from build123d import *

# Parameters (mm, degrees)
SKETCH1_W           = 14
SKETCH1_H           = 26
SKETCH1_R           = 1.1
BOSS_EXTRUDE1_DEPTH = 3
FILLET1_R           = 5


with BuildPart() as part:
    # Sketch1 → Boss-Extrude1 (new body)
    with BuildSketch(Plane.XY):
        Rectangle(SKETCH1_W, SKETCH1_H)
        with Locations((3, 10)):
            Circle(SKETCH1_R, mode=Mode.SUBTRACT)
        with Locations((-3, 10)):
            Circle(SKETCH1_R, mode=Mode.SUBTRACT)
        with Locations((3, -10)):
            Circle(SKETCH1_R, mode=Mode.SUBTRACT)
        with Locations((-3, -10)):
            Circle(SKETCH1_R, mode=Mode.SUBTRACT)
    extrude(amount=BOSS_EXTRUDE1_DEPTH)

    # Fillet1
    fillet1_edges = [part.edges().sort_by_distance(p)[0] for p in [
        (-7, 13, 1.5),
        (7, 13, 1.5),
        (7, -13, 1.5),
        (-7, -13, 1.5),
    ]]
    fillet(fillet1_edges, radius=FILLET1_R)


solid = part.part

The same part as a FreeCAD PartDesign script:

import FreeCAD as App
import Part
import Sketcher
Q = App.Units.Quantity


def edges_at(feature, points):
    """Names of the edges that pass closest to the given points."""
    edges = feature.Shape.Edges
    near = lambda p: min(range(len(edges)), key=lambda i: edges[i].distToShape(Part.Vertex(*p))[0])
    return sorted({f"Edge{near(p) + 1}" for p in points})


def add_polygon(sketch, points):
    """Adds a closed chain of lines whose ends are joined by coincident constraints."""
    first, n = sketch.GeometryCount, len(points)
    for a, b in zip(points, points[1:] + points[:1]):
        sketch.addGeometry(Part.LineSegment(App.Vector(*a, 0), App.Vector(*b, 0)), False)
    for i in range(n):
        sketch.addConstraint(Sketcher.Constraint("Coincident", first + i, 2, first + (i + 1) % n, 1))

doc = App.newDocument("Part")
params = doc.addObject("Spreadsheet::Sheet", "Params")
for row, (alias, value) in enumerate([
    ("sketch1_diameter", "2.2 mm"),
    ("sketch1_width", "14 mm"),
    ("sketch1_height", "26 mm"),
    ("pad1_length", "3 mm"),
    ("fillet_radius", "5 mm"),
], start=1):
    params.set(f"A{row}", alias)
    params.set(f"B{row}", "=" + value)
    params.setAlias(f"B{row}", alias)

body = doc.addObject("PartDesign::Body", "Body")

sketch1 = body.newObject("Sketcher::SketchObject", "Sketch")
sketch1.AttachmentSupport = (doc.getObject("XY_Plane"), [""])
sketch1.MapMode = "FlatFace"
add_polygon(sketch1, [(-7, 13), (-7, -13), (7, -13), (7, 13)])
sketch1.addGeometry(Part.Circle(App.Vector(-3, -10, 0), App.Vector(0, 0, 1), 1.1), False)
sketch1.addGeometry(Part.Circle(App.Vector(3, -10, 0), App.Vector(0, 0, 1), 1.1), False)
sketch1.addGeometry(Part.Circle(App.Vector(-3, 10, 0), App.Vector(0, 0, 1), 1.1), False)
sketch1.addGeometry(Part.Circle(App.Vector(3, 10, 0), App.Vector(0, 0, 1), 1.1), False)
sketch1.addConstraint([
    Sketcher.Constraint("Vertical", 0),
    Sketcher.Constraint("Horizontal", 1),
    Sketcher.Constraint("Vertical", 2),
    Sketcher.Constraint("Horizontal", 3),
    Sketcher.Constraint("Equal", 4, 5),
    Sketcher.Constraint("Equal", 5, 6),
    Sketcher.Constraint("Equal", 6, 7),
    Sketcher.Constraint("Symmetric", 5, 3, 6, 3, -1, 1),
    Sketcher.Constraint("Symmetric", 4, 3, 7, 3, -1, 1),
    Sketcher.Constraint("Symmetric", 0, 2, 2, 2, -1, 1),
    Sketcher.Constraint("Symmetric", 4, 3, 5, 3, -2),
    Sketcher.Constraint("Diameter", 4, Q("2.2 mm")),
    Sketcher.Constraint("DistanceX", 1, 1, 1, 2, Q("14 mm")),
    Sketcher.Constraint("DistanceY", 0, 2, 0, 1, Q("26 mm")),
    Sketcher.Constraint("DistanceX", 4, 3, -1, 1, Q("3 mm")),
    Sketcher.Constraint("DistanceY", 4, 3, -1, 1, Q("10 mm")),
])
sketch1.setExpression("Constraints[15]", "Params.sketch1_diameter")
sketch1.setExpression("Constraints[16]", "Params.sketch1_width")
sketch1.setExpression("Constraints[17]", "Params.sketch1_height")
pad1 = body.newObject("PartDesign::Pad", "Pad")
pad1.Profile = sketch1
pad1.setExpression("Length", "Params.pad1_length")
doc.recompute()

fillet = body.newObject("PartDesign::Fillet", "Fillet")
fillet.Base = (pad1, edges_at(pad1, [
    (-7, 13, 1.5),
    (7, 13, 1.5),
    (7, -13, 1.5),
    (-7, -13, 1.5),
]))
fillet.setExpression("Radius", "Params.fillet_radius")

doc.recompute()
